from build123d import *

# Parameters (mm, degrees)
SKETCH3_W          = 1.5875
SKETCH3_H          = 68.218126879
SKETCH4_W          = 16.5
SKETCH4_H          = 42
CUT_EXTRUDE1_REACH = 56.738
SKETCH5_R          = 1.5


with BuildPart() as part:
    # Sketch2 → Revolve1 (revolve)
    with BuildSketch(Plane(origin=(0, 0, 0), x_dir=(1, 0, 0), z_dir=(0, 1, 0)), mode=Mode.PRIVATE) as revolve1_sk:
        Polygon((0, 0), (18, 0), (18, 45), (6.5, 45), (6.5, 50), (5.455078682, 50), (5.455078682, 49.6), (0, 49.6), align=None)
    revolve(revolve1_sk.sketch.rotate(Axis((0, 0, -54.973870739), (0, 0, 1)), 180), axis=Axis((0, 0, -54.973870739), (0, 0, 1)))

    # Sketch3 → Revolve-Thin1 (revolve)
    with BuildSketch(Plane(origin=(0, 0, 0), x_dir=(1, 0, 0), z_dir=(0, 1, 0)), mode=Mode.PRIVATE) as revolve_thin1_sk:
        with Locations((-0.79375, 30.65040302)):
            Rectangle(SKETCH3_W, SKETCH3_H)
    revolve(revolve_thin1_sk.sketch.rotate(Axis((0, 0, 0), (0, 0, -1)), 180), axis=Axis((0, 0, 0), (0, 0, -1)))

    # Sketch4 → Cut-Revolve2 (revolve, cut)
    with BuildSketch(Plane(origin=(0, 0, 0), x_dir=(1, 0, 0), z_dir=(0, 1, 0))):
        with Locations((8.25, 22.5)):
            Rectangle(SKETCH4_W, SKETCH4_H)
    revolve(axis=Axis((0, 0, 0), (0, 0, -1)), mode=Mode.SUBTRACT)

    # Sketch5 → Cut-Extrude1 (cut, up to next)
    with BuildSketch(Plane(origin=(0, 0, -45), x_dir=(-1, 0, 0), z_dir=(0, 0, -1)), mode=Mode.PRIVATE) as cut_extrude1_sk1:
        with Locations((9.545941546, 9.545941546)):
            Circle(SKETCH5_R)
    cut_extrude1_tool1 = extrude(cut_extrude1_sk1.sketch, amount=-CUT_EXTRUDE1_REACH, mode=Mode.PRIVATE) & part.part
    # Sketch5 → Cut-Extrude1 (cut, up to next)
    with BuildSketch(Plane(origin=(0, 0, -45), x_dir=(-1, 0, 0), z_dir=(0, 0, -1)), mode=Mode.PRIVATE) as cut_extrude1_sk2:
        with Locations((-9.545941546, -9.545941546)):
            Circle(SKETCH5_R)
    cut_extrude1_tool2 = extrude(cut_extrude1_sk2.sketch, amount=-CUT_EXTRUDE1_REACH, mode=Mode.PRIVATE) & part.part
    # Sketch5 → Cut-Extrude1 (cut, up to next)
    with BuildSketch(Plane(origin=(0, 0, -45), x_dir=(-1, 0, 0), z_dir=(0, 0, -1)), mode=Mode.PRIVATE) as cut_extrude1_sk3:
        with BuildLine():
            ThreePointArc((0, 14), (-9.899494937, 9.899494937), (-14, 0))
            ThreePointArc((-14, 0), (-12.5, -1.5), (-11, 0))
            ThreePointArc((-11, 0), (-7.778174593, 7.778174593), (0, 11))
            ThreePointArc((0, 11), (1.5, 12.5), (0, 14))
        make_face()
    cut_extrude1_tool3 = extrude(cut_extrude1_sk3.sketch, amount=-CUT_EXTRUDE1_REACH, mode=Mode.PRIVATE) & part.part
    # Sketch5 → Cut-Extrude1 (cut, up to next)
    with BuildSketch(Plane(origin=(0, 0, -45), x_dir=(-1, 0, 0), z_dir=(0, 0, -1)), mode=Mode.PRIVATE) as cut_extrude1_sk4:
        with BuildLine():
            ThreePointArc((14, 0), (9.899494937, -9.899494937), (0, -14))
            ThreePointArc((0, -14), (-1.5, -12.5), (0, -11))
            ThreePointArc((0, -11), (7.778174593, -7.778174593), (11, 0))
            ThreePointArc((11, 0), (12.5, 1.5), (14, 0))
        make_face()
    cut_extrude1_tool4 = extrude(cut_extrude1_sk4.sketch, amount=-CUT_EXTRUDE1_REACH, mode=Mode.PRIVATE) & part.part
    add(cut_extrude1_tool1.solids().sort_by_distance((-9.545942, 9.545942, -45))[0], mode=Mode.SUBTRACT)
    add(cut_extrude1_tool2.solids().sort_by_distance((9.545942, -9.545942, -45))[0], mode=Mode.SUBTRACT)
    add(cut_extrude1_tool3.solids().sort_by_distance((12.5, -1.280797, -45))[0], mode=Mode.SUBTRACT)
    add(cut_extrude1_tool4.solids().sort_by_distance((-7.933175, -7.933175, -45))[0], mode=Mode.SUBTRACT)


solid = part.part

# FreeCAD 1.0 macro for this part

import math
import FreeCAD as App
import Part
import Sketcher
from FreeCAD import Vector
Q = App.Units.Quantity


def add_polygon(sketch, points):
    """Adds a closed chain of lines whose ends are joined by coincident constraints."""
    first, n = sketch.GeometryCount, len(points)
    for a, b in zip(points, points[1:] + points[:1]):
        sketch.addGeometry(Part.LineSegment(App.Vector(*a, 0), App.Vector(*b, 0)), False)
    for i in range(n):
        sketch.addConstraint(Sketcher.Constraint("Coincident", first + i, 2, first + (i + 1) % n, 1))

doc = App.newDocument("Part")
body = doc.addObject("PartDesign::Body", "Body")

sketch1 = body.newObject("Sketcher::SketchObject", "Sketch")
sketch1.AttachmentSupport = (doc.getObject("XZ_Plane"), [""])
sketch1.MapMode = "FlatFace"
add_polygon(sketch1, [(0, 0), (18, 0), (18, -45), (6.5, -45), (6.5, -50), (5.46, -50), (5.46, -49.6), (0, -49.6)])
sketch1.addConstraint(Sketcher.Constraint("Horizontal", 0))
sketch1.addConstraint(Sketcher.Constraint("Vertical", 1))
sketch1.addConstraint(Sketcher.Constraint("Horizontal", 2))
sketch1.addConstraint(Sketcher.Constraint("Vertical", 3))
sketch1.addConstraint(Sketcher.Constraint("Horizontal", 4))
sketch1.addConstraint(Sketcher.Constraint("Vertical", 5))
sketch1.addConstraint(Sketcher.Constraint("Horizontal", 6))
sketch1.addConstraint(Sketcher.Constraint("Vertical", 7))
sketch1.addConstraint(Sketcher.Constraint("Coincident", 7, 2, -1, 1))
sketch1.addConstraint(Sketcher.Constraint("DistanceX", 0, 1, 0, 2, Q("18 mm")))
sketch1.addConstraint(Sketcher.Constraint("DistanceY", 1, 2, 1, 1, Q("45 mm")))
sketch1.addConstraint(Sketcher.Constraint("DistanceY", 3, 2, 3, 1, Q("5 mm")))
sketch1.addConstraint(Sketcher.Constraint("DistanceX", 2, 2, 2, 1, Q("11.5 mm")))
sketch1.addConstraint(Sketcher.Constraint("DistanceY", 5, 1, 5, 2, Q("0.4 mm")))
sketch1.addConstraint(Sketcher.Constraint("DistanceX", 4, 2, 4, 1, Q("1.044921 mm")))
revolution = body.newObject("PartDesign::Revolution", "Revolution")
revolution.Profile = sketch1
revolution.ReferenceAxis = (sketch1, ["V_Axis"])
revolution.Angle = 360

sketch2 = body.newObject("Sketcher::SketchObject", "Sketch001")
sketch2.AttachmentSupport = (doc.getObject("XZ_Plane"), [""])
sketch2.MapMode = "FlatFace"
add_polygon(sketch2, [(-1.6, -64.8), (-1.6, 3.5), (0, 3.5), (0, -64.8)])
sketch2.addConstraint(Sketcher.Constraint("Vertical", 0))
sketch2.addConstraint(Sketcher.Constraint("Horizontal", 1))
sketch2.addConstraint(Sketcher.Constraint("Vertical", 2))
sketch2.addConstraint(Sketcher.Constraint("Horizontal", 3))
sketch2.addConstraint(Sketcher.Constraint("PointOnObject", 1, 2, -2))
sketch2.addConstraint(Sketcher.Constraint("DistanceX", 1, 1, 1, 2, Q("1.5875 mm")))
sketch2.addConstraint(Sketcher.Constraint("DistanceY", 0, 1, 0, 2, Q("68.218127 mm")))
sketch2.addConstraint(Sketcher.Constraint("DistanceY", -1, 1, 0, 2, Q("3.45866 mm")))
revolution2 = body.newObject("PartDesign::Revolution", "Revolution001")
revolution2.Profile = sketch2
revolution2.ReferenceAxis = (sketch2, ["V_Axis"])
revolution2.Angle = 360

sketch3 = body.newObject("Sketcher::SketchObject", "Sketch002")
sketch3.AttachmentSupport = (doc.getObject("XZ_Plane"), [""])
sketch3.MapMode = "FlatFace"
add_polygon(sketch3, [(0, -44), (0, -2), (16, -2), (16, -44)])
sketch3.addConstraint(Sketcher.Constraint("Vertical", 0))
sketch3.addConstraint(Sketcher.Constraint("Horizontal", 1))
sketch3.addConstraint(Sketcher.Constraint("Vertical", 2))
sketch3.addConstraint(Sketcher.Constraint("Horizontal", 3))
sketch3.addConstraint(Sketcher.Constraint("PointOnObject", 0, 2, -2))
sketch3.addConstraint(Sketcher.Constraint("DistanceY", 0, 1, 0, 2, Q("42 mm")))
sketch3.addConstraint(Sketcher.Constraint("DistanceX", 1, 1, 1, 2, Q("16.5 mm")))
sketch3.addConstraint(Sketcher.Constraint("DistanceY", 0, 2, -1, 1, Q("1.5 mm")))
groove = body.newObject("PartDesign::Groove", "Groove")
groove.Profile = sketch3
groove.ReferenceAxis = (sketch3, ["V_Axis"])
groove.Angle = 360

sketch4 = body.newObject("Sketcher::SketchObject", "Sketch003")
sketch4.AttachmentSupport = (doc.getObject("XY_Plane"), [""])
sketch4.MapMode = "FlatFace"
sketch4.AttachmentOffset = App.Placement(Vector(0, 0, -45), App.Rotation())
sketch4.addGeometry(Part.Circle(Vector(-9.5, 9.5, 0), Vector(0, 0, 1), 1.5), False)
sketch4.addConstraint(Sketcher.Constraint("Diameter", 0, Q("3 mm")))
sketch4.addConstraint(Sketcher.Constraint("DistanceX", 0, 3, -1, 1, Q("9.545942 mm")))
sketch4.addConstraint(Sketcher.Constraint("DistanceY", -1, 1, 0, 3, Q("9.545942 mm")))
pocket1 = body.newObject("PartDesign::Pocket", "Pocket")
pocket1.Profile = sketch4
pocket1.Type = "UpToFirst"
pocket1.Reversed = True

sketch5 = body.newObject("Sketcher::SketchObject", "Sketch004")
sketch5.AttachmentSupport = (doc.getObject("XY_Plane"), [""])
sketch5.MapMode = "FlatFace"
sketch5.AttachmentOffset = App.Placement(Vector(0, 0, -45), App.Rotation())
sketch5.addGeometry(Part.Circle(Vector(9.5, -9.5, 0), Vector(0, 0, 1), 1.5), False)
sketch5.addConstraint(Sketcher.Constraint("Diameter", 0, Q("3 mm")))
sketch5.addConstraint(Sketcher.Constraint("DistanceX", -1, 1, 0, 3, Q("9.545942 mm")))
sketch5.addConstraint(Sketcher.Constraint("DistanceY", 0, 3, -1, 1, Q("9.545942 mm")))
pocket2 = body.newObject("PartDesign::Pocket", "Pocket001")
pocket2.Profile = sketch5
pocket2.Type = "UpToFirst"
pocket2.Reversed = True

sketch6 = body.newObject("Sketcher::SketchObject", "Sketch005")
sketch6.AttachmentSupport = (doc.getObject("XY_Plane"), [""])
sketch6.MapMode = "FlatFace"
sketch6.AttachmentOffset = App.Placement(Vector(0, 0, -45), App.Rotation())
sketch6.addGeometry(Part.ArcOfCircle(Part.Circle(Vector(0, 0, 0), Vector(0, 0, 1), 14), math.radians(0), math.radians(90)), False)
sketch6.addGeometry(Part.ArcOfCircle(Part.Circle(Vector(12.5, 0, 0), Vector(0, 0, 1), 1.5), math.radians(180), math.radians(360)), False)
sketch6.addGeometry(Part.ArcOfCircle(Part.Circle(Vector(0, 0, 0), Vector(0, 0, 1), 11), math.radians(0), math.radians(90)), False)
sketch6.addGeometry(Part.ArcOfCircle(Part.Circle(Vector(0, 12.5, 0), Vector(0, 0, 1), 1.5), math.radians(90), math.radians(270)), False)
sketch6.addConstraint(Sketcher.Constraint("Tangent", 0, 1, 1, 2))
sketch6.addConstraint(Sketcher.Constraint("Tangent", 1, 1, 2, 1))
sketch6.addConstraint(Sketcher.Constraint("Tangent", 2, 2, 3, 2))
sketch6.addConstraint(Sketcher.Constraint("Tangent", 3, 1, 0, 2))
sketch6.addConstraint(Sketcher.Constraint("Coincident", 0, 3, -1, 1))
sketch6.addConstraint(Sketcher.Constraint("Coincident", 2, 3, -1, 1))
sketch6.addConstraint(Sketcher.Constraint("PointOnObject", 1, 3, -1))
sketch6.addConstraint(Sketcher.Constraint("PointOnObject", 3, 3, -2))
sketch6.addConstraint(Sketcher.Constraint("Radius", 0, Q("14 mm")))
sketch6.addConstraint(Sketcher.Constraint("Radius", 2, Q("11 mm")))
pocket3 = body.newObject("PartDesign::Pocket", "Pocket002")
pocket3.Profile = sketch6
pocket3.Type = "UpToFirst"
pocket3.Reversed = True

sketch7 = body.newObject("Sketcher::SketchObject", "Sketch006")
sketch7.AttachmentSupport = (doc.getObject("XY_Plane"), [""])
sketch7.MapMode = "FlatFace"
sketch7.AttachmentOffset = App.Placement(Vector(0, 0, -45), App.Rotation())
sketch7.addGeometry(Part.ArcOfCircle(Part.Circle(Vector(0, 0, 0), Vector(0, 0, 1), 14), math.radians(180), math.radians(270)), False)
sketch7.addGeometry(Part.ArcOfCircle(Part.Circle(Vector(-12.5, 0, 0), Vector(0, 0, 1), 1.5), math.radians(0), math.radians(180)), False)
sketch7.addGeometry(Part.ArcOfCircle(Part.Circle(Vector(0, 0, 0), Vector(0, 0, 1), 11), math.radians(180), math.radians(270)), False)
sketch7.addGeometry(Part.ArcOfCircle(Part.Circle(Vector(0, -12.5, 0), Vector(0, 0, 1), 1.5), math.radians(-90), math.radians(90)), False)
sketch7.addConstraint(Sketcher.Constraint("Tangent", 0, 1, 1, 2))
sketch7.addConstraint(Sketcher.Constraint("Tangent", 1, 1, 2, 1))
sketch7.addConstraint(Sketcher.Constraint("Tangent", 2, 2, 3, 2))
sketch7.addConstraint(Sketcher.Constraint("Tangent", 3, 1, 0, 2))
sketch7.addConstraint(Sketcher.Constraint("Coincident", 0, 3, -1, 1))
sketch7.addConstraint(Sketcher.Constraint("Coincident", 2, 3, -1, 1))
sketch7.addConstraint(Sketcher.Constraint("PointOnObject", 1, 3, -1))
sketch7.addConstraint(Sketcher.Constraint("PointOnObject", 3, 3, -2))
sketch7.addConstraint(Sketcher.Constraint("Radius", 0, Q("14 mm")))
sketch7.addConstraint(Sketcher.Constraint("Radius", 2, Q("11 mm")))
pocket4 = body.newObject("PartDesign::Pocket", "Pocket003")
pocket4.Profile = sketch7
pocket4.Type = "UpToFirst"
pocket4.Reversed = True

doc.recompute()
